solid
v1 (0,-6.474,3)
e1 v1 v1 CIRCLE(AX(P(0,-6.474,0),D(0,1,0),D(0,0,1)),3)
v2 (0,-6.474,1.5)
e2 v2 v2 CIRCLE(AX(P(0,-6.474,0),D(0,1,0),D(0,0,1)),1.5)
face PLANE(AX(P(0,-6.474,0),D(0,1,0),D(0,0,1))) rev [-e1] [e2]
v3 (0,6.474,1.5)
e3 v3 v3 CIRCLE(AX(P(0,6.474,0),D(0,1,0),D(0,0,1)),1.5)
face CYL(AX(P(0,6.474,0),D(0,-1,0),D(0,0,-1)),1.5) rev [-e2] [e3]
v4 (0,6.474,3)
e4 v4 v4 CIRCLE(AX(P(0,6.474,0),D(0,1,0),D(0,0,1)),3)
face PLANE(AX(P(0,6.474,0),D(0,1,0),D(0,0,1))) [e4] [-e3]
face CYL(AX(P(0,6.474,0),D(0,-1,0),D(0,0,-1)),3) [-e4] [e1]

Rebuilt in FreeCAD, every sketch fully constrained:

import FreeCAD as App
import Part
import Sketcher
Q = App.Units.Quantity

doc = App.newDocument("Part")
body = doc.addObject("PartDesign::Body", "Body")

# Sketch on XZ plane
sketch1 = body.newObject("Sketcher::SketchObject", "Sketch")
sketch1.AttachmentSupport = (doc.getObject("XZ_Plane"), [""])
sketch1.MapMode = "FlatFace"
sketch1.addGeometry(Part.Circle(App.Vector(0, 0, 0), App.Vector(0, 0, 1), 3), False)
sketch1.addGeometry(Part.Circle(App.Vector(0, 0, 0), App.Vector(0, 0, 1), 1.5), False)
sketch1.addConstraint(Sketcher.Constraint("Coincident", 0, 3, -1, 1))
sketch1.addConstraint(Sketcher.Constraint("Coincident", 1, 3, -1, 1))
sketch1.addConstraint(Sketcher.Constraint("Diameter", 0, Q("6 mm")))
sketch1.addConstraint(Sketcher.Constraint("Diameter", 1, Q("3 mm")))
pad1 = body.newObject("PartDesign::Pad", "Pad")
pad1.Profile = sketch1
pad1.Length = 12.948
pad1.Midplane = True

doc.recompute()
